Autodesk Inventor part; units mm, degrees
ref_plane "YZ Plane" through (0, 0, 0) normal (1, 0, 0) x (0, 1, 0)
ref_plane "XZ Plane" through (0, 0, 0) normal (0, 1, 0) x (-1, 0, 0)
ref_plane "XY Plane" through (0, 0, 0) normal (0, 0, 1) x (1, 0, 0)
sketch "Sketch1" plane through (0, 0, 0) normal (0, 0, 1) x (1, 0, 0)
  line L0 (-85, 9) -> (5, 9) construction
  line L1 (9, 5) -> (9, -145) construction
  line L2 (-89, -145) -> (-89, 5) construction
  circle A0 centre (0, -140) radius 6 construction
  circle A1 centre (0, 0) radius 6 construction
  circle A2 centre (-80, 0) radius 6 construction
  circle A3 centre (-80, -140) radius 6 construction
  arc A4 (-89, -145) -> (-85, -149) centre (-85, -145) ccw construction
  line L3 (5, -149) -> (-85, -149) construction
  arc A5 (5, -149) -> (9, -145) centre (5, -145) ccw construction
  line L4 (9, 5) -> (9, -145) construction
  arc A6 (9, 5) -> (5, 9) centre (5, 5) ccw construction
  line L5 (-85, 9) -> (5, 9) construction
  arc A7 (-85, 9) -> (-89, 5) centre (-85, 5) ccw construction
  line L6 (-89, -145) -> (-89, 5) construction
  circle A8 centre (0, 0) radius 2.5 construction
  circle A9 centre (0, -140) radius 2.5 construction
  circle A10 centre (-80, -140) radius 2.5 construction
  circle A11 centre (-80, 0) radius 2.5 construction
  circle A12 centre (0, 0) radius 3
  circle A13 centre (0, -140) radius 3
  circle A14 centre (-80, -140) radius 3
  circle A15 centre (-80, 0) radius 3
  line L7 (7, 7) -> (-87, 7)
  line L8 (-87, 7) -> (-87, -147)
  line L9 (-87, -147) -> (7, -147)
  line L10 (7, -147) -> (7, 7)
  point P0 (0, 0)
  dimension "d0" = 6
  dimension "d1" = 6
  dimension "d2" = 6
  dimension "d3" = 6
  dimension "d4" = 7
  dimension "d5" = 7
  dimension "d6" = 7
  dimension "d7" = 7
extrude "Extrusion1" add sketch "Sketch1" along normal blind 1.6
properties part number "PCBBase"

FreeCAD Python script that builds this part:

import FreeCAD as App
import Part
import Sketcher

doc = App.newDocument("Part")
body = doc.addObject("PartDesign::Body", "Body")

# Sketch on XY plane
sketch1 = body.newObject("Sketcher::SketchObject", "Sketch")
sketch1.AttachmentSupport = (doc.getObject("XY_Plane"), [""])
sketch1.MapMode = "FlatFace"
sketch1.addGeometry(Part.LineSegment(App.Vector(7, -147, 0), App.Vector(7, 7, 0)), False)
sketch1.addGeometry(Part.LineSegment(App.Vector(7, 7, 0), App.Vector(-87, 7, 0)), False)
sketch1.addGeometry(Part.LineSegment(App.Vector(-87, 7, 0), App.Vector(-87, -147, 0)), False)
sketch1.addGeometry(Part.LineSegment(App.Vector(-87, -147, 0), App.Vector(7, -147, 0)), False)
sketch1.addGeometry(Part.Circle(App.Vector(-80, -140, 0), App.Vector(0, 0, 1), 3), False)
sketch1.addGeometry(Part.Circle(App.Vector(0, -140, 0), App.Vector(0, 0, 1), 3), False)
sketch1.addGeometry(Part.Circle(App.Vector(-80, 0, 0), App.Vector(0, 0, 1), 3), False)
sketch1.addGeometry(Part.Circle(App.Vector(0, 0, 0), App.Vector(0, 0, 1), 3), False)
sketch1.addConstraint(Sketcher.Constraint("Coincident", 0, 2, 1, 1))
sketch1.addConstraint(Sketcher.Constraint("Coincident", 1, 2, 2, 1))
sketch1.addConstraint(Sketcher.Constraint("Coincident", 2, 2, 3, 1))
sketch1.addConstraint(Sketcher.Constraint("Coincident", 3, 2, 0, 1))
sketch1.addConstraint(Sketcher.Constraint("Vertical", 0))
sketch1.addConstraint(Sketcher.Constraint("Horizontal", 1))
sketch1.addConstraint(Sketcher.Constraint("Vertical", 2))
sketch1.addConstraint(Sketcher.Constraint("Horizontal", 3))
sketch1.addConstraint(Sketcher.Constraint("Coincident", 7, 3, -1, 1))
sketch1.addConstraint(Sketcher.Constraint("Equal", 4, 5))
sketch1.addConstraint(Sketcher.Constraint("Equal", 5, 6))
sketch1.addConstraint(Sketcher.Constraint("Equal", 6, 7))
sketch1.addConstraint(Sketcher.Constraint("PointOnObject", 5, 3, -2))
sketch1.addConstraint(Sketcher.Constraint("PointOnObject", 6, 3, -1))
sketch1.addConstraint(Sketcher.Constraint("Horizontal", 4, 3, 5, 3))
sketch1.addConstraint(Sketcher.Constraint("Vertical", 4, 3, 6, 3))
sketch1.addConstraint(Sketcher.Constraint("Diameter", 4, 6.0))
sketch1.addConstraint(Sketcher.Constraint("DistanceX", -1, 1, 0, 2, 7.0))
sketch1.addConstraint(Sketcher.Constraint("DistanceY", -1, 1, 0, 2, 7.0))
sketch1.addConstraint(Sketcher.Constraint("DistanceX", 1, 2, 6, 3, 7.0))
sketch1.addConstraint(Sketcher.Constraint("DistanceY", 2, 2, 4, 3, 7.0))
sketch1.addConstraint(Sketcher.Constraint("DistanceX", 1, 2, 1, 1, 94.0))
sketch1.addConstraint(Sketcher.Constraint("DistanceY", 0, 1, 0, 2, 154.0))
pad1 = body.newObject("PartDesign::Pad", "Pad")
pad1.Profile = sketch1
pad1.Length = 1.6

doc.recompute()
